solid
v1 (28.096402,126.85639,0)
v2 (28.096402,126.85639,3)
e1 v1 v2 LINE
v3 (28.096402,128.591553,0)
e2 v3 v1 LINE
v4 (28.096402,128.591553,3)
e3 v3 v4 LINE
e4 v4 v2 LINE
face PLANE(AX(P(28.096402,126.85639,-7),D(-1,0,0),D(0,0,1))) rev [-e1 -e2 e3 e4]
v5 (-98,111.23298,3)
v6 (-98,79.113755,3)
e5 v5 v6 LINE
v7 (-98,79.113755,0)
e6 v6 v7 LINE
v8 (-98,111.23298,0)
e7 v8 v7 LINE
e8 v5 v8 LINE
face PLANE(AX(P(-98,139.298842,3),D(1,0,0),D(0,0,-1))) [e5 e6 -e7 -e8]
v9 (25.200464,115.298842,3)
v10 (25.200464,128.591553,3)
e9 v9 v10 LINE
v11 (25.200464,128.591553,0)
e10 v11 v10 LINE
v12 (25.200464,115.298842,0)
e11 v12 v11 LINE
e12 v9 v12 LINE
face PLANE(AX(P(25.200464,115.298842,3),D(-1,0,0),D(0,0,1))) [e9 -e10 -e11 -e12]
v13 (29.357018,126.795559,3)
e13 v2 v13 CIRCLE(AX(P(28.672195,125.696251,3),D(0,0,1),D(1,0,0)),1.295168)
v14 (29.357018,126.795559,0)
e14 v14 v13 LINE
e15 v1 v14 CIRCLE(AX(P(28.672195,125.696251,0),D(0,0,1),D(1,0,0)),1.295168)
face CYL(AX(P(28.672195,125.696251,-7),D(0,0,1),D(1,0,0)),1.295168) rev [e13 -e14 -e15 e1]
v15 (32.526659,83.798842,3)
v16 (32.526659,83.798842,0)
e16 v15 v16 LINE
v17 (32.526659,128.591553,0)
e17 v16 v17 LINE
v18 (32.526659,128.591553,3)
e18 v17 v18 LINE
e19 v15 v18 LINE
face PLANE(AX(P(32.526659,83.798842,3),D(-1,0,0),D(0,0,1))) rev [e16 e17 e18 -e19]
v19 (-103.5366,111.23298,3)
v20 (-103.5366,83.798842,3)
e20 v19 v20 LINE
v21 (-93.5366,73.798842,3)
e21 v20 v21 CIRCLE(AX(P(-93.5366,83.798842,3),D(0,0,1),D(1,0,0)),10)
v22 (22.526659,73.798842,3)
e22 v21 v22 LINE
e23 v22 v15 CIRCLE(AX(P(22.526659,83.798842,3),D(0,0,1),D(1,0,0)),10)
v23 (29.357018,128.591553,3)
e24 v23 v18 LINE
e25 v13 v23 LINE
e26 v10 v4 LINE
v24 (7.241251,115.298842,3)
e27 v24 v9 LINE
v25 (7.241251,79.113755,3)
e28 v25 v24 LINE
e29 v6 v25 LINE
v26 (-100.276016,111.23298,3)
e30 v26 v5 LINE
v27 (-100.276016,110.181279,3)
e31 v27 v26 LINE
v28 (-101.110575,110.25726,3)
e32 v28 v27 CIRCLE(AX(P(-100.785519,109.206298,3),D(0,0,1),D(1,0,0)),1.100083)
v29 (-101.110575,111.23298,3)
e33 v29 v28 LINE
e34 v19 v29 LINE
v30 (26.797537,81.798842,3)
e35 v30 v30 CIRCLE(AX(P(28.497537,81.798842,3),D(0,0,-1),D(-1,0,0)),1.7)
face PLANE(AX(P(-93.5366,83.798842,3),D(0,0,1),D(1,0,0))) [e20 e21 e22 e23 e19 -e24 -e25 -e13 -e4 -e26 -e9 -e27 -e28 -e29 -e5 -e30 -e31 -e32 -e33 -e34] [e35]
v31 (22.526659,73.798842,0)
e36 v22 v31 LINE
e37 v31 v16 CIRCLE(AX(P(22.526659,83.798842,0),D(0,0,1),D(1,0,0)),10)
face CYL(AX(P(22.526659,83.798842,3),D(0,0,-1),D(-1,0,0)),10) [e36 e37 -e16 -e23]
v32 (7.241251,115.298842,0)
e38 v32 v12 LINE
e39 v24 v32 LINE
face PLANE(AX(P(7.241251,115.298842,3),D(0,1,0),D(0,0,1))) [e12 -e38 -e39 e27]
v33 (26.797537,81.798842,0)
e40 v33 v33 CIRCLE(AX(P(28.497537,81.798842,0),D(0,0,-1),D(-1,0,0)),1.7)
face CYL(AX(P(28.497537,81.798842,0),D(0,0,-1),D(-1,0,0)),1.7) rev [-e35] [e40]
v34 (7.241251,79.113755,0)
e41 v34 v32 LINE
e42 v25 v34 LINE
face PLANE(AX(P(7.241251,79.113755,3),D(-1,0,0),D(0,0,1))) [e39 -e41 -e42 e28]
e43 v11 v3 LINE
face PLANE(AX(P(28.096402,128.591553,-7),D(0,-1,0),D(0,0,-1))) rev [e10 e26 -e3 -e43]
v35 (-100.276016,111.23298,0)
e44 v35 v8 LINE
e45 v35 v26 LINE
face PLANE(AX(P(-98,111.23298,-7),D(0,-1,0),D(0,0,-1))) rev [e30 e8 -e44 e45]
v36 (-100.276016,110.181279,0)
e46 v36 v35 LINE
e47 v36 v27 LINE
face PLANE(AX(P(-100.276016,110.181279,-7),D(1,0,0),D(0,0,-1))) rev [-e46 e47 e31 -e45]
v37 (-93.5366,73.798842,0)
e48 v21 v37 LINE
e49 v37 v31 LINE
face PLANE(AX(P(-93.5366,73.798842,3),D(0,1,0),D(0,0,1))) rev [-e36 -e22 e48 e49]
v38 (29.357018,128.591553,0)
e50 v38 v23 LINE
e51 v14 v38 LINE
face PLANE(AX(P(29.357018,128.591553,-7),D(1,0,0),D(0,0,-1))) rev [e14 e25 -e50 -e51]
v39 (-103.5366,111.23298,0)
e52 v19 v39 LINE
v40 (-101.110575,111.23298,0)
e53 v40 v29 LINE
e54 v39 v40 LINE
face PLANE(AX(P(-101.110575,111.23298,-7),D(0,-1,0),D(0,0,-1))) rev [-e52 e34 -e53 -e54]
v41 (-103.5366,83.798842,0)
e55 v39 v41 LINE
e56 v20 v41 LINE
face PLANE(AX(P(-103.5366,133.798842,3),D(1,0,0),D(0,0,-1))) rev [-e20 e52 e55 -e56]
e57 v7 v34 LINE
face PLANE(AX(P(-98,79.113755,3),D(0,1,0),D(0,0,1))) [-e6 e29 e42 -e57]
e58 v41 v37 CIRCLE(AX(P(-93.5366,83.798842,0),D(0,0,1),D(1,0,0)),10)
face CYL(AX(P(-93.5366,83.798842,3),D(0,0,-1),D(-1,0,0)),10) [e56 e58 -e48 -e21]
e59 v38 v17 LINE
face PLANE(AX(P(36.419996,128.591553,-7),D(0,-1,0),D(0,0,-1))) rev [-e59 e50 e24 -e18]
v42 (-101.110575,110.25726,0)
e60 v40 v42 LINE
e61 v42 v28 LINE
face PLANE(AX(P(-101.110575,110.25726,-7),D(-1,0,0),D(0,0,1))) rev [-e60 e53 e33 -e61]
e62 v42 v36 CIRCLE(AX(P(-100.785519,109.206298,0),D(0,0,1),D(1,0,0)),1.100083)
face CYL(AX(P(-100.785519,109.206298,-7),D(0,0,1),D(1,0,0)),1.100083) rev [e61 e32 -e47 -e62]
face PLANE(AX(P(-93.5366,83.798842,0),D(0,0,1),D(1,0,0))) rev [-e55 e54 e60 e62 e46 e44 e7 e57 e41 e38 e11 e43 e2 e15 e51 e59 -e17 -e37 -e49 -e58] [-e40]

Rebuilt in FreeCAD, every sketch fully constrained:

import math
import FreeCAD as App
import Part
import Sketcher

V = App.Vector
Q = App.Units.Quantity


def add_polygon(sketch, points):
    """Adds a closed chain of lines whose ends are joined by coincident constraints."""
    first, n = sketch.GeometryCount, len(points)
    for a, b in zip(points, points[1:] + points[:1]):
        sketch.addGeometry(Part.LineSegment(App.Vector(*a, 0), App.Vector(*b, 0)), False)
    for i in range(n):
        sketch.addConstraint(Sketcher.Constraint("Coincident", first + i, 2, first + (i + 1) % n, 1))

doc = App.newDocument("Part")
body = doc.addObject("PartDesign::Body", "Body")

# Sketch on XY plane
sketch1 = body.newObject("Sketcher::SketchObject", "Sketch")
sketch1.AttachmentSupport = (doc.getObject("XY_Plane"), [""])
sketch1.MapMode = "FlatFace"
sketch1.addGeometry(Part.LineSegment(V(-93.5, 73.8, 0), V(22.5, 73.8, 0)), False)  # 0
sketch1.addGeometry(Part.ArcOfCircle(Part.Circle(V(22.5, 83.8, 0), V(0, 0, 1), 10), math.radians(-90), math.radians(0)), False)  # 1
sketch1.addGeometry(Part.LineSegment(V(32.5, 83.8, 0), V(32.5, 133.8, 0)), False)  # 2
sketch1.addGeometry(Part.ArcOfCircle(Part.Circle(V(22.5, 133.8, 0), V(0, 0, 1), 10), math.radians(0), math.radians(90)), False)  # 3
sketch1.addGeometry(Part.LineSegment(V(22.5, 143.8, 0), V(-93.5, 143.8, 0)), False)  # 4
sketch1.addGeometry(Part.ArcOfCircle(Part.Circle(V(-93.5, 133.8, 0), V(0, 0, 1), 10), math.radians(90), math.radians(180)), False)  # 5
sketch1.addGeometry(Part.LineSegment(V(-103.5, 133.8, 0), V(-103.5, 83.8, 0)), False)  # 6
sketch1.addGeometry(Part.ArcOfCircle(Part.Circle(V(-93.5, 83.8, 0), V(0, 0, 1), 10), math.radians(180), math.radians(270)), False)  # 7
add_polygon(sketch1, [(7.2, 115.3), (7.2, 79.1), (-98, 79.1), (-98, 139.3), (-63.7, 139.3), (-63.7, 141.3), (25.2, 141.3), (25.2, 115.3)])  # lines 8-15
sketch1.addConstraint([
    Sketcher.Constraint("Tangent", 0, 2, 1, 1),
    Sketcher.Constraint("Tangent", 1, 2, 2, 1),
    Sketcher.Constraint("Tangent", 2, 2, 3, 1),
    Sketcher.Constraint("Tangent", 3, 2, 4, 1),
    Sketcher.Constraint("Tangent", 4, 2, 5, 1),
    Sketcher.Constraint("Tangent", 5, 2, 6, 1),
    Sketcher.Constraint("Tangent", 6, 2, 7, 1),
    Sketcher.Constraint("Tangent", 7, 2, 0, 1),
    Sketcher.Constraint("Horizontal", 0),
    Sketcher.Constraint("Vertical", 2),
    Sketcher.Constraint("Horizontal", 4),
    Sketcher.Constraint("Vertical", 6),
    Sketcher.Constraint("Vertical", 8),
    Sketcher.Constraint("Horizontal", 9),
    Sketcher.Constraint("Vertical", 10),
    Sketcher.Constraint("Horizontal", 11),
    Sketcher.Constraint("Vertical", 12),
    Sketcher.Constraint("Horizontal", 13),
    Sketcher.Constraint("Vertical", 14),
    Sketcher.Constraint("Horizontal", 15),
    Sketcher.Constraint("Equal", 1, 3),
    Sketcher.Constraint("Equal", 3, 5),
    Sketcher.Constraint("Equal", 5, 7),
    Sketcher.Constraint("Radius", 1, Q("10 mm")),
    Sketcher.Constraint("DistanceY", 2, 1, 2, 2, Q("50 mm")),
    Sketcher.Constraint("DistanceY", 12, 1, 12, 2, Q("2 mm")),
    Sketcher.Constraint("DistanceY", 14, 2, 14, 1, Q("26 mm")),
    Sketcher.Constraint("DistanceX", 9, 2, -1, 1, Q("98 mm")),
    Sketcher.Constraint("DistanceY", 10, 2, 4, 2, Q("4.5 mm")),
    Sketcher.Constraint("DistanceX", 0, 1, 0, 2, Q("116.063259 mm")),
    Sketcher.Constraint("DistanceX", 9, 2, 9, 1, Q("105.241251 mm")),
    Sketcher.Constraint("DistanceX", 13, 1, 13, 2, Q("88.88659 mm")),
    Sketcher.Constraint("DistanceX", 5, 3, -1, 1, Q("93.5366 mm")),
    Sketcher.Constraint("DistanceX", 11, 1, 11, 2, Q("34.313875 mm")),
    Sketcher.Constraint("DistanceY", 8, 2, 8, 1, Q("36.185087 mm")),
    Sketcher.Constraint("DistanceY", -1, 1, 1, 3, Q("83.798842 mm")),
])
pad1 = body.newObject("PartDesign::Pad", "Pad")
pad1.Profile = sketch1
pad1.Length = 3

# Sketch on XY plane
sketch2 = body.newObject("Sketcher::SketchObject", "Sketch001")
sketch2.AttachmentSupport = (doc.getObject("XY_Plane"), [""])
sketch2.MapMode = "FlatFace"
sketch2.addGeometry([
    Part.Circle(V(28.5, 136.8, 0), V(0, 0, 1), 1.7),
    Part.Circle(V(28.5, 81.8, 0), V(0, 0, 1), 1.7),
], False)
sketch2.addConstraint([
    Sketcher.Constraint("Equal", 0, 1),
    Sketcher.Constraint("Vertical", 0, 3, 1, 3),
    Sketcher.Constraint("Diameter", 0, Q("3.4 mm")),
    Sketcher.Constraint("DistanceY", 1, 3, 0, 3, Q("55 mm")),
    Sketcher.Constraint("DistanceY", -1, 1, 0, 3, Q("136.798842 mm")),
    Sketcher.Constraint("DistanceX", -1, 1, 0, 3, Q("28.497537 mm")),
])
doc.recompute()
hole = body.newObject("PartDesign::Hole", "Hole")
hole.Profile = sketch2
hole.ThreadType = "None"
hole.Diameter = 3.4
hole.DepthType = "ThroughAll"
hole.Reversed = True

# Sketch on XY plane
sketch3 = body.newObject("Sketcher::SketchObject", "Sketch002")
sketch3.AttachmentSupport = (doc.getObject("XY_Plane"), [""])
sketch3.MapMode = "FlatFace"
sketch3.AttachmentOffset = App.Placement(V(0, 0, 3), App.Rotation())
sketch3.addGeometry([
    Part.LineSegment(V(-100.3, 111.2, 0), V(-98, 111.2, 0)),  # 0
    Part.LineSegment(V(-98, 111.2, 0), V(25.2, 128.6, 0)),  # 1
    Part.LineSegment(V(25.2, 128.6, 0), V(28.1, 128.6, 0)),  # 2
    Part.LineSegment(V(28.1, 128.6, 0), V(28.1, 126.9, 0)),  # 3
    Part.ArcOfCircle(Part.Circle(V(28.7, 125.7, 0), V(0, 0, 1), 1.3), math.radians(116), math.radians(418)),  # 4
    Part.LineSegment(V(29.4, 126.8, 0), V(29.4, 128.6, 0)),  # 5
    Part.LineSegment(V(29.4, 128.6, 0), V(36.4, 128.6, 0)),  # 6
    Part.LineSegment(V(36.4, 128.6, 0), V(37.5, 146.5, 0)),  # 7
    Part.LineSegment(V(37.5, 146.5, 0), V(-103.5, 155.2, 0)),  # 8
    Part.LineSegment(V(-103.5, 155.2, 0), V(-103.5, 111.2, 0)),  # 9
    Part.LineSegment(V(-103.5, 111.2, 0), V(-101.1, 111.2, 0)),  # 10
    Part.LineSegment(V(-101.1, 111.2, 0), V(-101.1, 110.3, 0)),  # 11
    Part.ArcOfCircle(Part.Circle(V(-100.8, 109.2, 0), V(0, 0, 1), 1.1), math.radians(107), math.radians(422)),  # 12
    Part.LineSegment(V(-100.3, 110.2, 0), V(-100.3, 111.2, 0)),  # 13
], False)
sketch3.addConstraint([
    Sketcher.Constraint("Coincident", 0, 2, 1, 1),
    Sketcher.Constraint("Coincident", 1, 2, 2, 1),
    Sketcher.Constraint("Coincident", 2, 2, 3, 1),
    Sketcher.Constraint("Coincident", 3, 2, 4, 1),
    Sketcher.Constraint("Coincident", 4, 2, 5, 1),
    Sketcher.Constraint("Coincident", 5, 2, 6, 1),
    Sketcher.Constraint("Coincident", 6, 2, 7, 1),
    Sketcher.Constraint("Coincident", 7, 2, 8, 1),
    Sketcher.Constraint("Coincident", 8, 2, 9, 1),
    Sketcher.Constraint("Coincident", 9, 2, 10, 1),
    Sketcher.Constraint("Coincident", 10, 2, 11, 1),
    Sketcher.Constraint("Coincident", 11, 2, 12, 1),
    Sketcher.Constraint("Coincident", 12, 2, 13, 1),
    Sketcher.Constraint("Coincident", 13, 2, 0, 1),
    Sketcher.Constraint("Horizontal", 0),
    Sketcher.Constraint("Horizontal", 2),
    Sketcher.Constraint("Vertical", 3),
    Sketcher.Constraint("Vertical", 5),
    Sketcher.Constraint("Horizontal", 6),
    Sketcher.Constraint("Vertical", 9),
    Sketcher.Constraint("Horizontal", 10),
    Sketcher.Constraint("Vertical", 11),
    Sketcher.Constraint("Vertical", 13),
    Sketcher.Constraint("Perpendicular", 7, 8),
    Sketcher.Constraint("Horizontal", 2, 2, 5, 2),
    Sketcher.Constraint("Horizontal", 0, 2, 9, 2),
    Sketcher.Constraint("DistanceX", 0, 2, -1, 1, Q("98 mm")),
    Sketcher.Constraint("Angle", 1, Q("8.020009 deg")),
    Sketcher.Constraint("Radius", 4, Q("1.295168 mm")),
    Sketcher.Constraint("DistanceY", 13, 1, 13, 2, Q("1.051701 mm")),
    Sketcher.Constraint("Radius", 12, Q("1.100083 mm")),
    Sketcher.Constraint("DistanceY", 11, 2, 11, 1, Q("0.975721 mm")),
    Sketcher.Constraint("DistanceY", -1, 1, 12, 3, Q("109.206298 mm")),
    Sketcher.Constraint("DistanceX", 8, 2, -1, 1, Q("103.5366 mm")),
    Sketcher.Constraint("DistanceY", 4, 3, 1, 2, Q("2.895302 mm")),
    Sketcher.Constraint("DistanceX", 4, 3, 6, 2, Q("7.747801 mm")),
    Sketcher.Constraint("Distance", 1, Q("124.41734 mm")),
    Sketcher.Constraint("Distance", 8, Q("141.323938 mm")),
    Sketcher.Constraint("DistanceX", 0, 1, 0, 2, Q("2.276016 mm")),
    Sketcher.Constraint("DistanceX", 2, 1, 2, 2, Q("2.895938 mm")),
    Sketcher.Constraint("DistanceX", 6, 1, 6, 2, Q("7.062978 mm")),
    Sketcher.Constraint("DistanceX", 10, 1, 10, 2, Q("2.426025 mm")),
    Sketcher.Constraint("DistanceY", 3, 2, 3, 1, Q("1.735162 mm")),
    Sketcher.Constraint("DistanceY", 9, 2, 9, 1, Q("43.936158 mm")),
])
pocket1 = body.newObject("PartDesign::Pocket", "Pocket")
pocket1.Profile = sketch3
pocket1.Length = 10

doc.recompute()
